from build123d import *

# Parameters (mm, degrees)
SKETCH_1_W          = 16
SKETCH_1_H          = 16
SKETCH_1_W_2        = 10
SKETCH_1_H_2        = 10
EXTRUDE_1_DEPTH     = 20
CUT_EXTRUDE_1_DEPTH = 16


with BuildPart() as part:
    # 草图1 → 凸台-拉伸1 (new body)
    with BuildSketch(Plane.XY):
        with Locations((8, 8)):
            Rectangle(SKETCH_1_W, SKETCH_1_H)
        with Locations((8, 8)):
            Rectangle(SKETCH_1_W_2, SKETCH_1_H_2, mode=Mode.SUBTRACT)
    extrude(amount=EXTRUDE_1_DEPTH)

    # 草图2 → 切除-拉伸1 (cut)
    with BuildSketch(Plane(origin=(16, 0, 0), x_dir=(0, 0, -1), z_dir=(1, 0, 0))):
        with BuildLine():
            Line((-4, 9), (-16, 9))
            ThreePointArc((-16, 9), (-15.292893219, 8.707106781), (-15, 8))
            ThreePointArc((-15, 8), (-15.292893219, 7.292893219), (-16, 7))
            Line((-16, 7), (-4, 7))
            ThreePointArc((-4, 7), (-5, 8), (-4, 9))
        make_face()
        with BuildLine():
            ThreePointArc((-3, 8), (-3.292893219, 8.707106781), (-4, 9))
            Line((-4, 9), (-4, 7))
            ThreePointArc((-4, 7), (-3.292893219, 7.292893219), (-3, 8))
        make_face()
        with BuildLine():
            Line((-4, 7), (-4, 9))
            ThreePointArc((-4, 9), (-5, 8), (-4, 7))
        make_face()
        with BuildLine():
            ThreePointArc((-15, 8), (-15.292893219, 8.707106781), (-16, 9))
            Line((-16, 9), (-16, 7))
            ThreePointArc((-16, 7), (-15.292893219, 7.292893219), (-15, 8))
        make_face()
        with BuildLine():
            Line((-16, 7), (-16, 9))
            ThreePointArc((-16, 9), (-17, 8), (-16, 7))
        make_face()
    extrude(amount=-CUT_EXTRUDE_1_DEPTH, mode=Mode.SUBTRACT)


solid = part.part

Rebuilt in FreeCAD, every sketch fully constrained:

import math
import FreeCAD as App
import Part
import Sketcher
Q = App.Units.Quantity

doc = App.newDocument("Part")
body = doc.addObject("PartDesign::Body", "Body")

# Sketch on XY plane
sketch1 = doc.addObject("Sketcher::SketchObject", "Sketch")
body.addObject(sketch1)
sketch1.AttachmentSupport = (doc.XY_Plane, [""])
sketch1.MapMode = "FlatFace"
sketch1.addGeometry([
    Part.LineSegment(App.Vector(0, 16, 0), App.Vector(0, 0, 0)),  # 0
    Part.LineSegment(App.Vector(0, 0, 0), App.Vector(16, 0, 0)),  # 1
    Part.LineSegment(App.Vector(16, 0, 0), App.Vector(16, 16, 0)),  # 2
    Part.LineSegment(App.Vector(16, 16, 0), App.Vector(0, 16, 0)),  # 3
    Part.LineSegment(App.Vector(13, 3, 0), App.Vector(3, 3, 0)),  # 4
    Part.LineSegment(App.Vector(3, 3, 0), App.Vector(3, 13, 0)),  # 5
    Part.LineSegment(App.Vector(3, 13, 0), App.Vector(13, 13, 0)),  # 6
    Part.LineSegment(App.Vector(13, 13, 0), App.Vector(13, 3, 0)),  # 7
], False)
sketch1.addConstraint([
    Sketcher.Constraint("Coincident", 0, 2, 1, 1),
    Sketcher.Constraint("Coincident", 1, 2, 2, 1),
    Sketcher.Constraint("Coincident", 2, 2, 3, 1),
    Sketcher.Constraint("Coincident", 3, 2, 0, 1),
    Sketcher.Constraint("Coincident", 4, 2, 5, 1),
    Sketcher.Constraint("Coincident", 5, 2, 6, 1),
    Sketcher.Constraint("Coincident", 6, 2, 7, 1),
    Sketcher.Constraint("Coincident", 7, 2, 4, 1),
    Sketcher.Constraint("Vertical", 0),
    Sketcher.Constraint("Horizontal", 1),
    Sketcher.Constraint("Vertical", 2),
    Sketcher.Constraint("Horizontal", 3),
    Sketcher.Constraint("Horizontal", 4),
    Sketcher.Constraint("Vertical", 5),
    Sketcher.Constraint("Horizontal", 6),
    Sketcher.Constraint("Vertical", 7),
    Sketcher.Constraint("Coincident", 0, 2, -1, 1),
    Sketcher.Constraint("Equal", 3, 0),
    Sketcher.Constraint("Equal", 6, 5),
    Sketcher.Constraint("DistanceX", 1, 1, 1, 2, Q("16 mm")),
    Sketcher.Constraint("DistanceX", 4, 2, 4, 1, Q("10 mm")),
    Sketcher.Constraint("DistanceX", -1, 1, 4, 2, Q("3 mm")),
    Sketcher.Constraint("DistanceY", -1, 1, 4, 2, Q("3 mm")),
])
pad1 = doc.addObject("PartDesign::Pad", "Pad")
body.addObject(pad1)
pad1.Profile = sketch1
pad1.Length = 20

# Sketch on YZ plane
sketch2 = doc.addObject("Sketcher::SketchObject", "Sketch001")
body.addObject(sketch2)
sketch2.AttachmentSupport = (doc.YZ_Plane, [""])
sketch2.MapMode = "FlatFace"
sketch2.AttachmentOffset = App.Placement(App.Vector(0, 0, 16), App.Rotation())
sketch2.addGeometry([
    Part.ArcOfCircle(Part.Circle(App.Vector(8, 4, 0), App.Vector(0, 0, 1), 1), math.radians(-90), math.radians(0)),  # 0
    Part.LineSegment(App.Vector(9, 4, 0), App.Vector(9, 16, 0)),  # 1
    Part.ArcOfCircle(Part.Circle(App.Vector(8, 16, 0), App.Vector(0, 0, 1), 1), math.radians(0), math.radians(180)),  # 2
    Part.LineSegment(App.Vector(7, 16, 0), App.Vector(7, 4, 0)),  # 3
    Part.ArcOfCircle(Part.Circle(App.Vector(8, 4, 0), App.Vector(0, 0, 1), 1), math.radians(-180), math.radians(-90)),  # 4
], False)
sketch2.addConstraint([
    Sketcher.Constraint("Tangent", 0, 2, 1, 1),
    Sketcher.Constraint("Tangent", 1, 2, 2, 1),
    Sketcher.Constraint("Tangent", 2, 2, 3, 1),
    Sketcher.Constraint("Tangent", 3, 2, 4, 1),
    Sketcher.Constraint("Tangent", 4, 2, 0, 1),
    Sketcher.Constraint("Vertical", 1),
    Sketcher.Constraint("Vertical", 3),
    Sketcher.Constraint("Equal", 0, 2),
    Sketcher.Constraint("Vertical", 2, 3, 4, 2),
    Sketcher.Constraint("Radius", 0, Q("1 mm")),
    Sketcher.Constraint("DistanceY", 1, 1, 1, 2, Q("12 mm")),
    Sketcher.Constraint("DistanceX", -1, 1, 0, 3, Q("8 mm")),
    Sketcher.Constraint("DistanceY", -1, 1, 0, 3, Q("4 mm")),
])
pocket1 = doc.addObject("PartDesign::Pocket", "Pocket")
body.addObject(pocket1)
pocket1.Profile = sketch2
pocket1.Length = 16

doc.recompute()
